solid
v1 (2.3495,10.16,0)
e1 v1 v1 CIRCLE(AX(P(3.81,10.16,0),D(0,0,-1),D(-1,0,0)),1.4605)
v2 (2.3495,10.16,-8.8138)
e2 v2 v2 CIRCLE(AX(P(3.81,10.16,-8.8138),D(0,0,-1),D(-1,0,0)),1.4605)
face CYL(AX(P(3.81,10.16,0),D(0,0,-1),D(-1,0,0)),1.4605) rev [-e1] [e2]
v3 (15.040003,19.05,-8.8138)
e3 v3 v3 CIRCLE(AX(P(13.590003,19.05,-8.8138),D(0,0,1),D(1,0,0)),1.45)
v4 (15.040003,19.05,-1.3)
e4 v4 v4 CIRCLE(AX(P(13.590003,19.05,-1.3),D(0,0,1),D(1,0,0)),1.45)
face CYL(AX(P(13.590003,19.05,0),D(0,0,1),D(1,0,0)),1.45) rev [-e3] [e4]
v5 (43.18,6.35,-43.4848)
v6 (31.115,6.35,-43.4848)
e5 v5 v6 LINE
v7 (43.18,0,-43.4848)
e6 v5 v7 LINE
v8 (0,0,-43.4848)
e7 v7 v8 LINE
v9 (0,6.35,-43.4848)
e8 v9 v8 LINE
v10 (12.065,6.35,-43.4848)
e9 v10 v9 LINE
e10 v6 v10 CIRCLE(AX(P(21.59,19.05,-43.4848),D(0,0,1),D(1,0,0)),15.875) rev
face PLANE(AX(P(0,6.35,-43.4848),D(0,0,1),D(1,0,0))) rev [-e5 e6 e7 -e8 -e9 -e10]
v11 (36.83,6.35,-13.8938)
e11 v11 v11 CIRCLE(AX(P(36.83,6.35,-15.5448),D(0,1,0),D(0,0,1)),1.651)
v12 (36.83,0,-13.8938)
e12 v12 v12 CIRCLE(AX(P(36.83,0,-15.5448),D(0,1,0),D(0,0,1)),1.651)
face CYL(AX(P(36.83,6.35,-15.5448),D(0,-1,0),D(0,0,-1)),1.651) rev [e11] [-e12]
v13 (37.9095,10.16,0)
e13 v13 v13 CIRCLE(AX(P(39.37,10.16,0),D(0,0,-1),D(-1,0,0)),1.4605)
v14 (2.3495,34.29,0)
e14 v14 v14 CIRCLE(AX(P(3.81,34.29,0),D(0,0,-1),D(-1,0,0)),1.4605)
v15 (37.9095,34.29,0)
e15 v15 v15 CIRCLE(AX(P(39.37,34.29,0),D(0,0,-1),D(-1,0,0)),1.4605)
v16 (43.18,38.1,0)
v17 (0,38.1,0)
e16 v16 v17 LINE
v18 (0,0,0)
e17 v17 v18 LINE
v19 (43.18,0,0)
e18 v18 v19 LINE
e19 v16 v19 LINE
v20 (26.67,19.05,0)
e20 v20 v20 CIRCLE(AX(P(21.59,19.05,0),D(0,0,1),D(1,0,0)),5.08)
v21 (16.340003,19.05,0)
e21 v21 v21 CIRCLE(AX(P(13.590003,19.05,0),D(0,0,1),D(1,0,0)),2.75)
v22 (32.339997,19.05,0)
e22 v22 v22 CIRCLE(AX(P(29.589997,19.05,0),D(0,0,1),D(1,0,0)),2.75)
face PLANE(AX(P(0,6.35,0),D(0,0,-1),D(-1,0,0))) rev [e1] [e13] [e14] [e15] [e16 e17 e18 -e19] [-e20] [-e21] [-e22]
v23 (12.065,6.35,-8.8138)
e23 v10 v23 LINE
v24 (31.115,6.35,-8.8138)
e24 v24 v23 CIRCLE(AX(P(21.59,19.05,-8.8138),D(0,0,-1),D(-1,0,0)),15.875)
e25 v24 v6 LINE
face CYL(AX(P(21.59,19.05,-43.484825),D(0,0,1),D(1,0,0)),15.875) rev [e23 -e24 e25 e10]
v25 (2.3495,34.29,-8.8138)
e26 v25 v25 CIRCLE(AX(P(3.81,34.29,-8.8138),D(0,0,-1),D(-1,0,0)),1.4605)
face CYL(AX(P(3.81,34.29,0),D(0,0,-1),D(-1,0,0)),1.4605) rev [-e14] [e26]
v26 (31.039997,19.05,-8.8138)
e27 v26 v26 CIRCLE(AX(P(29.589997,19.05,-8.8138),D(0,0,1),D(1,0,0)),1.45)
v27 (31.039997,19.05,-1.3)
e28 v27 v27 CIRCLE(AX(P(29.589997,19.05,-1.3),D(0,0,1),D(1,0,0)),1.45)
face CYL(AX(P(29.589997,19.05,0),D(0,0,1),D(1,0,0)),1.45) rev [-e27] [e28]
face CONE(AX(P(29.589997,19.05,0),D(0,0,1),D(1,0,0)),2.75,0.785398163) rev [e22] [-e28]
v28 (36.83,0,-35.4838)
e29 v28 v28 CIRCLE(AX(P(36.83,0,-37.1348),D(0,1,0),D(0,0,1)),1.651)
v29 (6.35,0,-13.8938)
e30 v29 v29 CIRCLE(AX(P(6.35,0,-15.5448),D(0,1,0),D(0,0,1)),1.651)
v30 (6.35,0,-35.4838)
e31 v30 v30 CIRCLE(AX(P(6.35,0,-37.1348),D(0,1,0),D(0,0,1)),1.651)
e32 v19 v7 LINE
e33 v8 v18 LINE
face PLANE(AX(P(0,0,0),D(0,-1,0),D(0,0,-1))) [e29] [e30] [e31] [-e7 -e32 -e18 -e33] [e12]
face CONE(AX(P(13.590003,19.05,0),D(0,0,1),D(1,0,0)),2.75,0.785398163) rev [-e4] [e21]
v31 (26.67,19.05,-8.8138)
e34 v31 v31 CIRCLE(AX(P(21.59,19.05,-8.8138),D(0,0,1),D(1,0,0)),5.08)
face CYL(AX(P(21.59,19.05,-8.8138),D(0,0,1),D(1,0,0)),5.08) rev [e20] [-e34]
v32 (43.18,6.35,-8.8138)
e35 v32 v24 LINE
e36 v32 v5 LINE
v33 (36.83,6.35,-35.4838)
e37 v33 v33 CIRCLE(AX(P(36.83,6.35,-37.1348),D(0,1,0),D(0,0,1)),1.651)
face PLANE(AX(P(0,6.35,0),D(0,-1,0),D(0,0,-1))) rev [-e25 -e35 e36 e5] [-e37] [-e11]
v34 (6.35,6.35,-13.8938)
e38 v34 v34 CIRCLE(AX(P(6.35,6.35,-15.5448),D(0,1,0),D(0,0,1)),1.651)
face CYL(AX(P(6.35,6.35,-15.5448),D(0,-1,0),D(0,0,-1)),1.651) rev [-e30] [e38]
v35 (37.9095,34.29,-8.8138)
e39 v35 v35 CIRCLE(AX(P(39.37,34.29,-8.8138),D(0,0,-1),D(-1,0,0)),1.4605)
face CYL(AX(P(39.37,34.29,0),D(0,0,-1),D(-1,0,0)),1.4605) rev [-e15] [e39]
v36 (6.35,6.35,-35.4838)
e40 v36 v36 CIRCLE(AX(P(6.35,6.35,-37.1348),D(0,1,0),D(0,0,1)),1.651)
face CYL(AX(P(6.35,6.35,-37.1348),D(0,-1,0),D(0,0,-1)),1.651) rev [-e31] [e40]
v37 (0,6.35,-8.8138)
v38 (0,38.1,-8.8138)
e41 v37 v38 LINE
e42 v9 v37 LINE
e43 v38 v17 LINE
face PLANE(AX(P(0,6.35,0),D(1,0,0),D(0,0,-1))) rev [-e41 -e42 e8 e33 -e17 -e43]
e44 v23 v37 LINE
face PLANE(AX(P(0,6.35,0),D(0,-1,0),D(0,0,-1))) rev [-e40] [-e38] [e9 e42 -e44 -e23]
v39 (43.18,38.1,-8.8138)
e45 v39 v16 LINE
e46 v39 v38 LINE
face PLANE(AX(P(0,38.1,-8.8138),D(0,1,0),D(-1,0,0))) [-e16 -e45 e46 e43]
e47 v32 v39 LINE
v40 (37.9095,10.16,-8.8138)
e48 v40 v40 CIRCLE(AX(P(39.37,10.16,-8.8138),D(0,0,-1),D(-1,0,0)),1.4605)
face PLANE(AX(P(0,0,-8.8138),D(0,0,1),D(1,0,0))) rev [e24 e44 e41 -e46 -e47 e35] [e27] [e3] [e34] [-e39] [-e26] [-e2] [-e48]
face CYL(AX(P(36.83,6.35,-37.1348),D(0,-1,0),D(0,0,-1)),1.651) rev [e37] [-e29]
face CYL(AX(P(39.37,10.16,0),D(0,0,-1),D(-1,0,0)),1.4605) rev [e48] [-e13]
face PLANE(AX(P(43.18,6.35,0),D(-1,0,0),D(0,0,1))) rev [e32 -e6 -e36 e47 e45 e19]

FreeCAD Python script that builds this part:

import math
import FreeCAD as App
import Part
import Sketcher
from FreeCAD import Vector
Q = App.Units.Quantity

doc = App.newDocument("Part")
body = doc.addObject("PartDesign::Body", "Body")

# Sketch on XZ plane
sketch1 = body.newObject("Sketcher::SketchObject", "Sketch")
sketch1.AttachmentSupport = (doc.getObject("XZ_Plane"), [""])
sketch1.MapMode = "FlatFace"
sketch1.addGeometry([
    Part.LineSegment(Vector(0, -43.5, 0), Vector(0, 0, 0)),  # 0
    Part.LineSegment(Vector(0, 0, 0), Vector(43.2, 0, 0)),  # 1
    Part.LineSegment(Vector(43.2, 0, 0), Vector(43.2, -43.5, 0)),  # 2
    Part.LineSegment(Vector(43.2, -43.5, 0), Vector(0, -43.5, 0)),  # 3
    Part.Circle(Vector(6.3, -15.5, 0), Vector(0, 0, 1), 1.7),  # 4
    Part.Circle(Vector(36.8, -15.5, 0), Vector(0, 0, 1), 1.7),  # 5
    Part.Circle(Vector(6.3, -37.1, 0), Vector(0, 0, 1), 1.7),  # 6
    Part.Circle(Vector(36.8, -37.1, 0), Vector(0, 0, 1), 1.7),  # 7
], False)
sketch1.addConstraint([
    Sketcher.Constraint("Coincident", 0, 2, 1, 1),
    Sketcher.Constraint("Coincident", 1, 2, 2, 1),
    Sketcher.Constraint("Coincident", 2, 2, 3, 1),
    Sketcher.Constraint("Coincident", 3, 2, 0, 1),
    Sketcher.Constraint("Vertical", 0),
    Sketcher.Constraint("Horizontal", 1),
    Sketcher.Constraint("Vertical", 2),
    Sketcher.Constraint("Horizontal", 3),
    Sketcher.Constraint("Coincident", 0, 2, -1, 1),
    Sketcher.Constraint("Equal", 4, 5),
    Sketcher.Constraint("Equal", 5, 6),
    Sketcher.Constraint("Equal", 6, 7),
    Sketcher.Constraint("Horizontal", 4, 3, 5, 3),
    Sketcher.Constraint("Horizontal", 6, 3, 7, 3),
    Sketcher.Constraint("Vertical", 4, 3, 6, 3),
    Sketcher.Constraint("Vertical", 5, 3, 7, 3),
    Sketcher.Constraint("Diameter", 4, Q("0.13 in")),
    Sketcher.Constraint("DistanceX", 1, 1, 1, 2, Q("1.7 in")),
    Sketcher.Constraint("DistanceX", 4, 3, 5, 3, Q("1.2 in")),
    Sketcher.Constraint("DistanceY", 2, 2, 5, 3, Q("1.1 in")),
    Sketcher.Constraint("DistanceY", 0, 1, 0, 2, Q("1.712 in")),
    Sketcher.Constraint("DistanceX", -1, 1, 4, 3, Q("0.25 in")),
    Sketcher.Constraint("DistanceY", 6, 3, 4, 3, Q("0.85 in")),
])
pad1 = body.newObject("PartDesign::Pad", "Pad")
pad1.Profile = sketch1
pad1.Length = Q("0.25 in")
pad1.Reversed = True

# Sketch on XY plane
sketch2 = body.newObject("Sketcher::SketchObject", "Sketch001")
sketch2.AttachmentSupport = (doc.getObject("XY_Plane"), [""])
sketch2.MapMode = "FlatFace"
sketch2.addGeometry([
    Part.LineSegment(Vector(0, 6, 0), Vector(43, 6, 0)),  # 0
    Part.LineSegment(Vector(43, 6, 0), Vector(43, 38, 0)),  # 1
    Part.LineSegment(Vector(43, 38, 0), Vector(0, 38, 0)),  # 2
    Part.LineSegment(Vector(0, 38, 0), Vector(0, 6, 0)),  # 3
    Part.ArcOfCircle(Part.Circle(Vector(22, 19, 0), Vector(0, 0, 1), 5), math.radians(90), math.radians(270)),  # 4
    Part.ArcOfCircle(Part.Circle(Vector(22, 19, 0), Vector(0, 0, 1), 5), math.radians(0), math.radians(90)),  # 5
    Part.ArcOfCircle(Part.Circle(Vector(22, 19, 0), Vector(0, 0, 1), 5), math.radians(-90), math.radians(0)),  # 6
], False)
sketch2.addConstraint([
    Sketcher.Constraint("Coincident", 0, 2, 1, 1),
    Sketcher.Constraint("Coincident", 1, 2, 2, 1),
    Sketcher.Constraint("Coincident", 2, 2, 3, 1),
    Sketcher.Constraint("Coincident", 3, 2, 0, 1),
    Sketcher.Constraint("Tangent", 4, 1, 5, 2),
    Sketcher.Constraint("Tangent", 5, 1, 6, 2),
    Sketcher.Constraint("Tangent", 6, 1, 4, 2),
    Sketcher.Constraint("Horizontal", 0),
    Sketcher.Constraint("Vertical", 1),
    Sketcher.Constraint("Horizontal", 2),
    Sketcher.Constraint("Vertical", 3),
    Sketcher.Constraint("PointOnObject", 2, 2, -2),
    Sketcher.Constraint("Horizontal", 6, 3, 5, 1),
    Sketcher.Constraint("Vertical", 6, 3, 4, 1),
    Sketcher.Constraint("Vertical", 4, 1, 6, 1),
    Sketcher.Constraint("Radius", 4, Q("0.2 in")),
    Sketcher.Constraint("DistanceX", 0, 1, 0, 2, Q("1.7 in")),
    Sketcher.Constraint("DistanceY", 1, 1, 1, 2, Q("1.25 in")),
    Sketcher.Constraint("DistanceY", -1, 1, 1, 2, Q("1.5 in")),
    Sketcher.Constraint("DistanceY", 0, 2, 4, 3, Q("0.5 in")),
    Sketcher.Constraint("DistanceX", -1, 1, 4, 3, Q("0.85 in")),
])
pad2 = body.newObject("PartDesign::Pad", "Pad001")
pad2.Profile = sketch2
pad2.Length = Q("0.347 in")
pad2.Reversed = True

# Sketch on XY plane
sketch3 = body.newObject("Sketcher::SketchObject", "Sketch002")
sketch3.AttachmentSupport = (doc.getObject("XY_Plane"), [""])
sketch3.MapMode = "FlatFace"
sketch3.addGeometry([
    Part.Circle(Vector(13.6, 19.1, 0), Vector(0, 0, 1), 1.4),
    Part.Circle(Vector(29.6, 19.1, 0), Vector(0, 0, 1), 1.4),
], False)
sketch3.addConstraint([
    Sketcher.Constraint("Equal", 0, 1),
    Sketcher.Constraint("Horizontal", 0, 3, 1, 3),
    Sketcher.Constraint("Diameter", 0, Q("2.9 mm")),
    Sketcher.Constraint("DistanceY", -1, 1, 0, 3, Q("0.75 in")),
    Sketcher.Constraint("DistanceX", -1, 1, 0, 3, Q("13.590003 mm")),
    Sketcher.Constraint("DistanceX", -1, 1, 1, 3, Q("29.589997 mm")),
])
doc.recompute()
hole = body.newObject("PartDesign::Hole", "Hole")
hole.Profile = sketch3
hole.ThreadType = "None"
hole.Diameter = 2.9
hole.DepthType = "ThroughAll"
hole.HoleCutType = "Countersink"
hole.HoleCutDiameter = 5.5
hole.HoleCutCountersinkAngle = 90

# Sketch on XY plane
sketch4 = body.newObject("Sketcher::SketchObject", "Sketch003")
sketch4.AttachmentSupport = (doc.getObject("XY_Plane"), [""])
sketch4.MapMode = "FlatFace"
sketch4.AttachmentOffset = App.Placement(Vector(0, 0, -0.347 * 25.4), App.Rotation())
sketch4.addGeometry([
    Part.Circle(Vector(39.4, 34.3, 0), Vector(0, 0, 1), 1.5),
    Part.Circle(Vector(39.4, 10.2, 0), Vector(0, 0, 1), 1.5),
    Part.Circle(Vector(3.8, 34.3, 0), Vector(0, 0, 1), 1.5),
    Part.Circle(Vector(3.8, 10.2, 0), Vector(0, 0, 1), 1.5),
], False)
sketch4.addConstraint([
    Sketcher.Constraint("Equal", 0, 1),
    Sketcher.Constraint("Equal", 1, 2),
    Sketcher.Constraint("Equal", 2, 3),
    Sketcher.Constraint("Horizontal", 0, 3, 2, 3),
    Sketcher.Constraint("Horizontal", 1, 3, 3, 3),
    Sketcher.Constraint("Vertical", 0, 3, 1, 3),
    Sketcher.Constraint("Vertical", 2, 3, 3, 3),
    Sketcher.Constraint("Diameter", 0, Q("0.115 in")),
    Sketcher.Constraint("DistanceY", -1, 1, 1, 3, Q("0.4 in")),
    Sketcher.Constraint("DistanceX", 2, 3, 0, 3, Q("1.4 in")),
    Sketcher.Constraint("DistanceX", -1, 1, 0, 3, Q("1.55 in")),
    Sketcher.Constraint("DistanceY", -1, 1, 0, 3, Q("1.35 in")),
])
pocket1 = body.newObject("PartDesign::Pocket", "Pocket")
pocket1.Profile = sketch4
pocket1.Type = "ThroughAll"
pocket1.Reversed = True

# Sketch on XY plane
sketch5 = body.newObject("Sketcher::SketchObject", "Sketch004")
sketch5.AttachmentSupport = (doc.getObject("XY_Plane"), [""])
sketch5.MapMode = "FlatFace"
sketch5.AttachmentOffset = App.Placement(Vector(0, 0, -0.347 * 25.4), App.Rotation())
sketch5.addGeometry(Part.Circle(Vector(22, 19, 0), Vector(0, 0, 1), 16), False)
sketch5.addConstraint([
    Sketcher.Constraint("Diameter", 0, Q("1.25 in")),
    Sketcher.Constraint("DistanceX", -1, 1, 0, 3, Q("0.85 in")),
    Sketcher.Constraint("DistanceY", -1, 1, 0, 3, Q("0.75 in")),
])
pocket2 = body.newObject("PartDesign::Pocket", "Pocket001")
pocket2.Profile = sketch5
pocket2.Type = "ThroughAll"

doc.recompute()
